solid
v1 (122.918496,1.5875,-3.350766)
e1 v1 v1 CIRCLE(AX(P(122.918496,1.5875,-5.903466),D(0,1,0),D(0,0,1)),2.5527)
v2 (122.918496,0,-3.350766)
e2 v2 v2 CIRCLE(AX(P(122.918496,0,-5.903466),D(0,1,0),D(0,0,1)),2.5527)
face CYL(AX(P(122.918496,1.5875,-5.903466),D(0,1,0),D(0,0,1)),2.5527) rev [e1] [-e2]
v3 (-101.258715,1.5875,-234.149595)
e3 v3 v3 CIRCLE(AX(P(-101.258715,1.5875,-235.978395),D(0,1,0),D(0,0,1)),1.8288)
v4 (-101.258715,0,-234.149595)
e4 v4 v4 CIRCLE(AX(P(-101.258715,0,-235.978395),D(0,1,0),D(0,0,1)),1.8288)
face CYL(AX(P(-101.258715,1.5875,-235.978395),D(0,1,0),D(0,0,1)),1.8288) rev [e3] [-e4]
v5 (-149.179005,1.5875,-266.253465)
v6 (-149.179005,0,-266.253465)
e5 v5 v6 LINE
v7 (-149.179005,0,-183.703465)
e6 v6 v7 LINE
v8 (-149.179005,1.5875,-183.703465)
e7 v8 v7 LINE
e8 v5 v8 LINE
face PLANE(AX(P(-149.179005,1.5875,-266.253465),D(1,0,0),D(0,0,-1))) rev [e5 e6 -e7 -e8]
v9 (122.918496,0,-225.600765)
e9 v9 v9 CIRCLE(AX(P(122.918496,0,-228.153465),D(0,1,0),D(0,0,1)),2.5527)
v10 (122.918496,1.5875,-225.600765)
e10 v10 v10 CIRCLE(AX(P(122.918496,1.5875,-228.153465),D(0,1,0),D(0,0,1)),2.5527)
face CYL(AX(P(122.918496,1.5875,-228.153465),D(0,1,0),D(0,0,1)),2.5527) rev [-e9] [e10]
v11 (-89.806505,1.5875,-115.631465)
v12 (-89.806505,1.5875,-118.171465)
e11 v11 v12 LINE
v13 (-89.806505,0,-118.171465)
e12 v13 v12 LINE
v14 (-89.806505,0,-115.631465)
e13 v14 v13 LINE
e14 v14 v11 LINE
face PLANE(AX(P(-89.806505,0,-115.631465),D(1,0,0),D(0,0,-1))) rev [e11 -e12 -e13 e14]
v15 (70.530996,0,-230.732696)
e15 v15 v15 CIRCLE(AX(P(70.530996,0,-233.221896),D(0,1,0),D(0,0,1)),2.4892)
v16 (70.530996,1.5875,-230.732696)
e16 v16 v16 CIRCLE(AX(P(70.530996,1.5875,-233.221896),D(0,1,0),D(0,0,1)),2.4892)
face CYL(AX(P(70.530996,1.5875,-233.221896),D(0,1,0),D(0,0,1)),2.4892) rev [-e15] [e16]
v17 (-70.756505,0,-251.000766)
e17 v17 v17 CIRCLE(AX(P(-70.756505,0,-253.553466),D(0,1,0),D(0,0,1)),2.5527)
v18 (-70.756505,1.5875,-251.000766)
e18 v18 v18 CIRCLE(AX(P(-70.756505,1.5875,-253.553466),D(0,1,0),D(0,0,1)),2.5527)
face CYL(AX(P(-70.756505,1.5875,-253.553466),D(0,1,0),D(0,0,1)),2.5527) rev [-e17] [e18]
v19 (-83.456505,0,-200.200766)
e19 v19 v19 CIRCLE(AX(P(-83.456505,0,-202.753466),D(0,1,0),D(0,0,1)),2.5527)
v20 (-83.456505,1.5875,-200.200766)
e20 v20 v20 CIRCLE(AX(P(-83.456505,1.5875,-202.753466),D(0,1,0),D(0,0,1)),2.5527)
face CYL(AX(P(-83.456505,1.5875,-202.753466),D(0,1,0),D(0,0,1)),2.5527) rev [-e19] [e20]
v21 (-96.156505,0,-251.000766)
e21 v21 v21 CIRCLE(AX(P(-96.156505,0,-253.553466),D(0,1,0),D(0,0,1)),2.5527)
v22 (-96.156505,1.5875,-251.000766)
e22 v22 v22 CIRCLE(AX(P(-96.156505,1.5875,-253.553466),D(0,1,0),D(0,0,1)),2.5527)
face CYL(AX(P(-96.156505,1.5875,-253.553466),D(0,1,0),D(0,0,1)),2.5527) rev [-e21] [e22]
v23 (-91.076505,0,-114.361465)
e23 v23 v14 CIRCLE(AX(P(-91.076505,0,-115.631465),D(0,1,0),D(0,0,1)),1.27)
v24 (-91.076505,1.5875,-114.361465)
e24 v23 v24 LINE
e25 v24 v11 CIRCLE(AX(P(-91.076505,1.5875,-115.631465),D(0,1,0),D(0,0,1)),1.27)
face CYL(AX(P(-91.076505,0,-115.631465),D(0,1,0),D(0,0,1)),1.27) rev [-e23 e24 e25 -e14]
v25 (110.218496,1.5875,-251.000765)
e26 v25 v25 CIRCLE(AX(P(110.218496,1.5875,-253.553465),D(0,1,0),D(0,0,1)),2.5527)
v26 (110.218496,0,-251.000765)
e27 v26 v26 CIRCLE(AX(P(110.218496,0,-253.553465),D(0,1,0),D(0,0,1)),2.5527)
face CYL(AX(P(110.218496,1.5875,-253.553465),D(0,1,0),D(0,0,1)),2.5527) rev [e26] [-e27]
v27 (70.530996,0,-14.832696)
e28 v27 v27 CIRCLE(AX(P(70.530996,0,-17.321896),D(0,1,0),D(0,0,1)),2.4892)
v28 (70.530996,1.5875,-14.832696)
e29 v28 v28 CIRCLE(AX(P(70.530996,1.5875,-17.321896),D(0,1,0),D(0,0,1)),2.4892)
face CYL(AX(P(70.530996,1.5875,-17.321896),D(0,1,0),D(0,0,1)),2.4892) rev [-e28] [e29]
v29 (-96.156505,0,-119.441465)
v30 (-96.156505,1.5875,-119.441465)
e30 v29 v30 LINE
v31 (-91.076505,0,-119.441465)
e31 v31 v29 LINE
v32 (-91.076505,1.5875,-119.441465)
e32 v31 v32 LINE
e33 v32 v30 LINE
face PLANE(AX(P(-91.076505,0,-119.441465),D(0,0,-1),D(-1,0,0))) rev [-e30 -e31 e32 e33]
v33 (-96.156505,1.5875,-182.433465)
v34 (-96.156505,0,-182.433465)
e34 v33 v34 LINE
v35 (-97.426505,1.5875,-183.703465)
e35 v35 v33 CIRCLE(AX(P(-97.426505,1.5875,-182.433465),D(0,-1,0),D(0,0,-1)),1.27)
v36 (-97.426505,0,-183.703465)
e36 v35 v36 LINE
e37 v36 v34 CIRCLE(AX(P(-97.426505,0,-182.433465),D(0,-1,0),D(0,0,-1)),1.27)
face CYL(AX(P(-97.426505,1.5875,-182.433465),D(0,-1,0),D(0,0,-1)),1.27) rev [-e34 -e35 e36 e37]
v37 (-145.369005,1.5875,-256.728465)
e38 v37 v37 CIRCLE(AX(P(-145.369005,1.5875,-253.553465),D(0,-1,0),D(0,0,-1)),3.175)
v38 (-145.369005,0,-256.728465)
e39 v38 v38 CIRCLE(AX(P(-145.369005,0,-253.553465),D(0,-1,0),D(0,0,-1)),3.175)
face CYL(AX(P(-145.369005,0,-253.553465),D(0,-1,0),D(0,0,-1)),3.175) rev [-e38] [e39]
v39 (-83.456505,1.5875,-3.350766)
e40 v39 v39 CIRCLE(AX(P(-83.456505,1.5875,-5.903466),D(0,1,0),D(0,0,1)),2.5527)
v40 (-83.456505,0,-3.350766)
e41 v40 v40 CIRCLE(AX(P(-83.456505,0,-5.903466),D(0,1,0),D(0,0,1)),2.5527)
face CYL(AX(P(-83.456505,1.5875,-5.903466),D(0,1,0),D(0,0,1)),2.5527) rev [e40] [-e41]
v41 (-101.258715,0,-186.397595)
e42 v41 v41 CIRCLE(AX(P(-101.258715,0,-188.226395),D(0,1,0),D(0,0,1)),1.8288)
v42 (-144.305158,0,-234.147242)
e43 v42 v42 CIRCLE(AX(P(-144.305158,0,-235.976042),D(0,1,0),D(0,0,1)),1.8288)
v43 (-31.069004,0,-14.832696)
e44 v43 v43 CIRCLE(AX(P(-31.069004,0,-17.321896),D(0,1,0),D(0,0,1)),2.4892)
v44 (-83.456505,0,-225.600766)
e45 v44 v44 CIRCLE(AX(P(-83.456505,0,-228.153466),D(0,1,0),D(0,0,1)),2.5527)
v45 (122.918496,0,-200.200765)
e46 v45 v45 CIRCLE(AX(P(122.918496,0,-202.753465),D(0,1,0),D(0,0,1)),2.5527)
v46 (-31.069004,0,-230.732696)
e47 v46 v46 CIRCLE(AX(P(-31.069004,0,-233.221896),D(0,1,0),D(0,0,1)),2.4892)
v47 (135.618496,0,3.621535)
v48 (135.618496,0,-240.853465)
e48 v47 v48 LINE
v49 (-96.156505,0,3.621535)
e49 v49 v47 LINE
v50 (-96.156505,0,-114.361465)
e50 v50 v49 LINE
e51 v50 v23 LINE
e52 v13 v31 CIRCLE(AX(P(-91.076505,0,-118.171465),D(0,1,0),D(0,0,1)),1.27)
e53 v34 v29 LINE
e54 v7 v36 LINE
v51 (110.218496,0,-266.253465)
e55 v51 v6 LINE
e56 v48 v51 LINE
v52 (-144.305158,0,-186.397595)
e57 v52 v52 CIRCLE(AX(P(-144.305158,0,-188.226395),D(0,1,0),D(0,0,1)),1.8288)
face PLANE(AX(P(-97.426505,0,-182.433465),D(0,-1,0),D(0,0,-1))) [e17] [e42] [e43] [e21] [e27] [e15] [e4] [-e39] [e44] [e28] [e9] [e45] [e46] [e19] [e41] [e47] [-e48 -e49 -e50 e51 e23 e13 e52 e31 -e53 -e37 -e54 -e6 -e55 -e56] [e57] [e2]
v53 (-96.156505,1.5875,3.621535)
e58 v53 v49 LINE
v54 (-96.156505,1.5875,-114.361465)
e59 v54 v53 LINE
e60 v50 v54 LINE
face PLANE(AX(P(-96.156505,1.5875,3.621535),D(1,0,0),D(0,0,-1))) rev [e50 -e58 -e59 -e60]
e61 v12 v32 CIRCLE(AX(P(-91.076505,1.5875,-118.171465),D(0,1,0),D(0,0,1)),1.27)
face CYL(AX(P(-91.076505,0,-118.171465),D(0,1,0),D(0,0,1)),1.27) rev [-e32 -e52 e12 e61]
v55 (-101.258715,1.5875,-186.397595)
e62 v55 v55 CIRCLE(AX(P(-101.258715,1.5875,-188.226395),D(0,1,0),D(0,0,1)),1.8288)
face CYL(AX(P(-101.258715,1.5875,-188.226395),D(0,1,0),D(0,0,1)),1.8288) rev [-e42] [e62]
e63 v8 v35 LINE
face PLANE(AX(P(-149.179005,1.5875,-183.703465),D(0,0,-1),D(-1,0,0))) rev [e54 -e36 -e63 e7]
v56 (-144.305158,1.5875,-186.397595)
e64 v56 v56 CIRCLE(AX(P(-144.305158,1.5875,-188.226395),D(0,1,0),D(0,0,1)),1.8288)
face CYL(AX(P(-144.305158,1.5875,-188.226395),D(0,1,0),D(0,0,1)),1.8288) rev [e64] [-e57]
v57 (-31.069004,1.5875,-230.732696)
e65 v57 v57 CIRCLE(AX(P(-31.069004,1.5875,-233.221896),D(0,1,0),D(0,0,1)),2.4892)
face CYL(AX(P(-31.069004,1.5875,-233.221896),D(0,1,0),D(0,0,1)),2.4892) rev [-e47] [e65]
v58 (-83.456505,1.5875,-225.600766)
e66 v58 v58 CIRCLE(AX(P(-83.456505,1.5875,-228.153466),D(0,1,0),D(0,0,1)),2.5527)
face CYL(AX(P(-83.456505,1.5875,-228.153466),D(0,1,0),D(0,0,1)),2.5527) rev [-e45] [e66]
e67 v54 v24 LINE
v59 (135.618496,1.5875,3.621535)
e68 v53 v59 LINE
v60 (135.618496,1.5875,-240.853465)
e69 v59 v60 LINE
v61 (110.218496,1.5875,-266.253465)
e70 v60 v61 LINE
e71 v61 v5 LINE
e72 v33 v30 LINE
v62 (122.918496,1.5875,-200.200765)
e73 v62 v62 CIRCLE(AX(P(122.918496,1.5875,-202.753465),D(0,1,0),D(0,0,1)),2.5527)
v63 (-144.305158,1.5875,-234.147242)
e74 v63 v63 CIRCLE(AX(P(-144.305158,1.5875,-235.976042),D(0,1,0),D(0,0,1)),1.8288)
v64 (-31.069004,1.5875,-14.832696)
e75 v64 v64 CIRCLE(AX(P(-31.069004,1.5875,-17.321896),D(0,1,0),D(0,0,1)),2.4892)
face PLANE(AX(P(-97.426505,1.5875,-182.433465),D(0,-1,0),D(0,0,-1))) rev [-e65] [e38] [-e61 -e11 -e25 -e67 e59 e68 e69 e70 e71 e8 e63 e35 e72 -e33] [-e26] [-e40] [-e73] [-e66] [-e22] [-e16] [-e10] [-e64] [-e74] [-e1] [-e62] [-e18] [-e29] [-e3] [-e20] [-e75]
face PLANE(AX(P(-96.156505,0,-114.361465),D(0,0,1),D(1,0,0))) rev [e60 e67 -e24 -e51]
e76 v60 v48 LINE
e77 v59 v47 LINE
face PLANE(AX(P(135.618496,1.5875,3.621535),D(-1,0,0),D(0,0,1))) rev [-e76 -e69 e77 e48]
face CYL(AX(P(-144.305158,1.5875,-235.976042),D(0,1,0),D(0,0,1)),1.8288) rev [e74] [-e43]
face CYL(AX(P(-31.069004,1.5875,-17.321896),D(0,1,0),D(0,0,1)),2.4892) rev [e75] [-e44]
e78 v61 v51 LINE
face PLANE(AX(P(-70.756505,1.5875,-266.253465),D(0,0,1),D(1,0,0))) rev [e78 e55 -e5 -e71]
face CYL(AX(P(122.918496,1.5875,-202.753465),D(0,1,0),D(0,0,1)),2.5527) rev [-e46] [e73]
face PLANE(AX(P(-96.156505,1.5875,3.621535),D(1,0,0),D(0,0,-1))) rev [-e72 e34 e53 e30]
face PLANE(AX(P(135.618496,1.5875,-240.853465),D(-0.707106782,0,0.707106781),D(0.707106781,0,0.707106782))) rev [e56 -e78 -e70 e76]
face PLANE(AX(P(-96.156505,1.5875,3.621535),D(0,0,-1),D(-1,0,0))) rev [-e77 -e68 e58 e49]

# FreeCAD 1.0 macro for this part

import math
import FreeCAD as App
import Part
import Sketcher
Q = App.Units.Quantity

doc = App.newDocument("Part")
body = doc.addObject("PartDesign::Body", "Body")

sketch1 = body.newObject("Sketcher::SketchObject", "Sketch")
sketch1.AttachmentSupport = (doc.getObject("XZ_Plane"), [""])
sketch1.MapMode = "FlatFace"
sketch1.addGeometry([
    Part.LineSegment(App.Vector(-96.2, -182.4, 0), App.Vector(-96.2, 3.6, 0)),
    Part.LineSegment(App.Vector(-96.2, 3.6, 0), App.Vector(135.6, 3.6, 0)),
    Part.LineSegment(App.Vector(135.6, 3.6, 0), App.Vector(135.6, -240.9, 0)),
    Part.LineSegment(App.Vector(135.6, -240.9, 0), App.Vector(110.2, -266.3, 0)),
    Part.LineSegment(App.Vector(110.2, -266.3, 0), App.Vector(-149.2, -266.3, 0)),
    Part.LineSegment(App.Vector(-149.2, -266.3, 0), App.Vector(-149.2, -183.7, 0)),
    Part.LineSegment(App.Vector(-149.2, -183.7, 0), App.Vector(-97.4, -183.7, 0)),
    Part.ArcOfCircle(Part.Circle(App.Vector(-97.4, -182.4, 0), App.Vector(0, 0, 1), 1.3), math.radians(-90), math.radians(0)),
], False)
sketch1.addConstraint([
    Sketcher.Constraint("Coincident", 0, 2, 1, 1),
    Sketcher.Constraint("Coincident", 1, 2, 2, 1),
    Sketcher.Constraint("Coincident", 2, 2, 3, 1),
    Sketcher.Constraint("Coincident", 3, 2, 4, 1),
    Sketcher.Constraint("Coincident", 4, 2, 5, 1),
    Sketcher.Constraint("Coincident", 5, 2, 6, 1),
    Sketcher.Constraint("Tangent", 6, 2, 7, 1),
    Sketcher.Constraint("Tangent", 7, 2, 0, 1),
    Sketcher.Constraint("Vertical", 0),
    Sketcher.Constraint("Horizontal", 1),
    Sketcher.Constraint("Vertical", 2),
    Sketcher.Constraint("Horizontal", 4),
    Sketcher.Constraint("Vertical", 5),
    Sketcher.Constraint("Horizontal", 6),
    Sketcher.Constraint("Radius", 7, Q("0.05 in")),
    Sketcher.Constraint("Angle", 3, Q("-135 deg")),
    Sketcher.Constraint("DistanceX", 3, 2, 2, 2, Q("1 in")),
    Sketcher.Constraint("DistanceY", 5, 1, 5, 2, Q("3.25 in")),
    Sketcher.Constraint("DistanceX", 1, 1, 1, 2, Q("9.125 in")),
    Sketcher.Constraint("DistanceY", 0, 1, 0, 2, Q("7.325 in")),
    Sketcher.Constraint("DistanceX", 4, 2, 4, 1, Q("10.2125 in")),
    Sketcher.Constraint("DistanceX", 7, 3, -1, 1, 97.426505),
    Sketcher.Constraint("DistanceY", 7, 3, -1, 1, 182.433465),
])
pad1 = body.newObject("PartDesign::Pad", "Pad")
pad1.Profile = sketch1
pad1.Length = Q("0.0625 in")
pad1.Reversed = True

sketch2 = body.newObject("Sketcher::SketchObject", "Sketch001")
sketch2.AttachmentSupport = (doc.getObject("XZ_Plane"), [""])
sketch2.MapMode = "FlatFace"
sketch2.AttachmentOffset = App.Placement(App.Vector(0, 0, -0.0625 * 25.4), App.Rotation())
sketch2.addGeometry([
    Part.Circle(App.Vector(-83.5, 25.8, 0), App.Vector(0, 0, 1), 2.6),
    Part.Circle(App.Vector(-83.5, -202.8, 0), App.Vector(0, 0, 1), 2.6),
    Part.Circle(App.Vector(-83.5, -228.2, 0), App.Vector(0, 0, 1), 2.6),
    Part.Circle(App.Vector(-70.8, -253.6, 0), App.Vector(0, 0, 1), 2.6),
    Part.Circle(App.Vector(122.9, -202.8, 0), App.Vector(0, 0, 1), 2.6),
    Part.Circle(App.Vector(122.9, -228.2, 0), App.Vector(0, 0, 1), 2.6),
    Part.Circle(App.Vector(110.2, -253.6, 0), App.Vector(0, 0, 1), 2.6),
    Part.Circle(App.Vector(-83.5, -5.9, 0), App.Vector(0, 0, 1), 2.6),
    Part.Circle(App.Vector(122.9, -5.9, 0), App.Vector(0, 0, 1), 2.6),
    Part.Circle(App.Vector(-96.2, -253.6, 0), App.Vector(0, 0, 1), 2.6),
], False)
sketch2.addConstraint([
    Sketcher.Constraint("Equal", 0, 1),
    Sketcher.Constraint("Equal", 1, 2),
    Sketcher.Constraint("Equal", 2, 3),
    Sketcher.Constraint("Equal", 3, 4),
    Sketcher.Constraint("Equal", 4, 5),
    Sketcher.Constraint("Equal", 5, 6),
    Sketcher.Constraint("Equal", 6, 7),
    Sketcher.Constraint("Equal", 7, 8),
    Sketcher.Constraint("Equal", 8, 9),
    Sketcher.Constraint("Horizontal", 1, 3, 4, 3),
    Sketcher.Constraint("Horizontal", 2, 3, 5, 3),
    Sketcher.Constraint("Horizontal", 3, 3, 6, 3),
    Sketcher.Constraint("Horizontal", 7, 3, 8, 3),
    Sketcher.Constraint("Horizontal", 6, 3, 9, 3),
    Sketcher.Constraint("Vertical", 0, 3, 1, 3),
    Sketcher.Constraint("Vertical", 1, 3, 2, 3),
    Sketcher.Constraint("Vertical", 4, 3, 5, 3),
    Sketcher.Constraint("Vertical", 2, 3, 7, 3),
    Sketcher.Constraint("Vertical", 5, 3, 8, 3),
    Sketcher.Constraint("Diameter", 0, Q("0.201 in")),
    Sketcher.Constraint("DistanceY", 1, 3, 0, 3, Q("9 in")),
    Sketcher.Constraint("DistanceY", 2, 3, 1, 3, Q("1 in")),
    Sketcher.Constraint("DistanceY", 3, 3, 2, 3, Q("1 in")),
    Sketcher.Constraint("DistanceX", 9, 3, 3, 3, Q("1 in")),
    Sketcher.Constraint("DistanceX", 2, 3, 3, 3, Q("0.5 in")),
    Sketcher.Constraint("DistanceX", 6, 3, 5, 3, Q("0.5 in")),
    Sketcher.Constraint("DistanceY", 7, 3, 0, 3, Q("1.25 in")),
    Sketcher.Constraint("DistanceX", 3, 3, 4, 3, Q("7.625 in")),
    Sketcher.Constraint("DistanceX", 0, 3, -1, 1, 83.456505),
    Sketcher.Constraint("DistanceY", -1, 1, 0, 3, 25.846534),
])
doc.recompute()
hole = body.newObject("PartDesign::Hole", "Hole")
hole.Profile = sketch2
hole.ThreadType = "None"
hole.Diameter = Q("0.201 in")
hole.DepthType = "ThroughAll"
hole.Reversed = True

sketch3 = body.newObject("Sketcher::SketchObject", "Sketch002")
sketch3.AttachmentSupport = (doc.getObject("XZ_Plane"), [""])
sketch3.MapMode = "FlatFace"
sketch3.addGeometry(Part.Circle(App.Vector(-145.4, -253.6, 0), App.Vector(0, 0, 1), 3.2), False)
sketch3.addConstraint([
    Sketcher.Constraint("Diameter", 0, Q("0.25 in")),
    Sketcher.Constraint("DistanceX", 0, 3, -1, 1, 145.369005),
    Sketcher.Constraint("DistanceY", 0, 3, -1, 1, 253.553465),
])
doc.recompute()
hole2 = body.newObject("PartDesign::Hole", "Hole001")
hole2.Profile = sketch3
hole2.ThreadType = "None"
hole2.Diameter = Q("0.25 in")
hole2.DepthType = "ThroughAll"

sketch4 = body.newObject("Sketcher::SketchObject", "Sketch003")
sketch4.AttachmentSupport = (doc.getObject("XZ_Plane"), [""])
sketch4.MapMode = "FlatFace"
sketch4.AttachmentOffset = App.Placement(App.Vector(0, 0, -0.0625 * 25.4), App.Rotation())
sketch4.addGeometry([
    Part.Circle(App.Vector(-144.3, -236, 0), App.Vector(0, 0, 1), 1.8),
    Part.Circle(App.Vector(-144.3, -188.2, 0), App.Vector(0, 0, 1), 1.8),
    Part.Circle(App.Vector(-101.3, -188.2, 0), App.Vector(0, 0, 1), 1.8),
    Part.Circle(App.Vector(-101.3, -236, 0), App.Vector(0, 0, 1), 1.8),
], False)
sketch4.addConstraint([
    Sketcher.Constraint("Equal", 0, 1),
    Sketcher.Constraint("Equal", 1, 2),
    Sketcher.Constraint("Equal", 2, 3),
    Sketcher.Constraint("Horizontal", 1, 3, 2, 3),
    Sketcher.Constraint("Vertical", 0, 3, 1, 3),
    Sketcher.Constraint("Vertical", 2, 3, 3, 3),
    Sketcher.Constraint("Diameter", 0, Q("0.144 in")),
    Sketcher.Constraint("DistanceY", 3, 3, 2, 3, Q("1.88 in")),
    Sketcher.Constraint("DistanceY", 0, 3, -1, 1, 235.976042),
    Sketcher.Constraint("DistanceX", 0, 3, -1, 1, 144.305158),
    Sketcher.Constraint("DistanceY", 1, 3, -1, 1, 188.226395),
    Sketcher.Constraint("DistanceX", 2, 3, -1, 1, 101.258715),
])
doc.recompute()
hole3 = body.newObject("PartDesign::Hole", "Hole002")
hole3.Profile = sketch4
hole3.ThreadType = "None"
hole3.Diameter = Q("0.144 in")
hole3.DepthType = "ThroughAll"
hole3.Reversed = True

sketch5 = body.newObject("Sketcher::SketchObject", "Sketch004")
sketch5.AttachmentSupport = (doc.getObject("XZ_Plane"), [""])
sketch5.MapMode = "FlatFace"
sketch5.AttachmentOffset = App.Placement(App.Vector(0, 0, -0.0625 * 25.4), App.Rotation())
sketch5.addGeometry([
    Part.LineSegment(App.Vector(-96.2, -114.4, 0), App.Vector(-91.1, -114.4, 0)),
    Part.ArcOfCircle(Part.Circle(App.Vector(-91.1, -115.6, 0), App.Vector(0, 0, 1), 1.3), math.radians(0), math.radians(90)),
    Part.LineSegment(App.Vector(-89.8, -115.6, 0), App.Vector(-89.8, -118.2, 0)),
    Part.ArcOfCircle(Part.Circle(App.Vector(-91.1, -118.2, 0), App.Vector(0, 0, 1), 1.3), math.radians(-90), math.radians(0)),
    Part.LineSegment(App.Vector(-91.1, -119.4, 0), App.Vector(-96.2, -119.4, 0)),
    Part.LineSegment(App.Vector(-96.2, -119.4, 0), App.Vector(-96.2, -114.4, 0)),
], False)
sketch5.addConstraint([
    Sketcher.Constraint("Tangent", 0, 2, 1, 2),
    Sketcher.Constraint("Tangent", 1, 1, 2, 1),
    Sketcher.Constraint("Tangent", 2, 2, 3, 2),
    Sketcher.Constraint("Tangent", 3, 1, 4, 1),
    Sketcher.Constraint("Coincident", 4, 2, 5, 1),
    Sketcher.Constraint("Coincident", 5, 2, 0, 1),
    Sketcher.Constraint("Horizontal", 0),
    Sketcher.Constraint("Vertical", 2),
    Sketcher.Constraint("Horizontal", 4),
    Sketcher.Constraint("Vertical", 5),
    Sketcher.Constraint("Equal", 1, 3),
    Sketcher.Constraint("Equal", 4, 5),
    Sketcher.Constraint("Radius", 1, Q("0.05 in")),
    Sketcher.Constraint("DistanceX", 0, 1, 0, 2, Q("0.2 in")),
    Sketcher.Constraint("DistanceX", 1, 3, -1, 1, 91.076505),
    Sketcher.Constraint("DistanceY", 1, 3, -1, 1, 115.631465),
])
pocket1 = body.newObject("PartDesign::Pocket", "Pocket")
pocket1.Profile = sketch5
pocket1.Type = "ThroughAll"
pocket1.Reversed = True

sketch6 = body.newObject("Sketcher::SketchObject", "Sketch005")
sketch6.AttachmentSupport = (doc.getObject("XZ_Plane"), [""])
sketch6.MapMode = "FlatFace"
sketch6.AttachmentOffset = App.Placement(App.Vector(0, 0, -0.0625 * 25.4), App.Rotation())
sketch6.addGeometry([
    Part.Circle(App.Vector(-31.1, -233.2, 0), App.Vector(0, 0, 1), 2.5),
    Part.Circle(App.Vector(70.5, -233.2, 0), App.Vector(0, 0, 1), 2.5),
    Part.Circle(App.Vector(70.5, -17.3, 0), App.Vector(0, 0, 1), 2.5),
    Part.Circle(App.Vector(-31.1, -17.3, 0), App.Vector(0, 0, 1), 2.5),
], False)
sketch6.addConstraint([
    Sketcher.Constraint("Equal", 0, 1),
    Sketcher.Constraint("Equal", 1, 2),
    Sketcher.Constraint("Equal", 2, 3),
    Sketcher.Constraint("Horizontal", 0, 3, 1, 3),
    Sketcher.Constraint("Horizontal", 2, 3, 3, 3),
    Sketcher.Constraint("Vertical", 1, 3, 2, 3),
    Sketcher.Constraint("Vertical", 0, 3, 3, 3),
    Sketcher.Constraint("Diameter", 0, Q("0.196 in")),
    Sketcher.Constraint("DistanceX", 0, 3, 1, 3, Q("4 in")),
    Sketcher.Constraint("DistanceY", 1, 3, 2, 3, Q("8.5 in")),
    Sketcher.Constraint("DistanceX", 0, 3, -1, 1, 31.069004),
    Sketcher.Constraint("DistanceY", 0, 3, -1, 1, 233.221896),
])
doc.recompute()
hole4 = body.newObject("PartDesign::Hole", "Hole003")
hole4.Profile = sketch6
hole4.ThreadType = "None"
hole4.Diameter = Q("0.196 in")
hole4.DepthType = "ThroughAll"
hole4.Reversed = True

doc.recompute()
